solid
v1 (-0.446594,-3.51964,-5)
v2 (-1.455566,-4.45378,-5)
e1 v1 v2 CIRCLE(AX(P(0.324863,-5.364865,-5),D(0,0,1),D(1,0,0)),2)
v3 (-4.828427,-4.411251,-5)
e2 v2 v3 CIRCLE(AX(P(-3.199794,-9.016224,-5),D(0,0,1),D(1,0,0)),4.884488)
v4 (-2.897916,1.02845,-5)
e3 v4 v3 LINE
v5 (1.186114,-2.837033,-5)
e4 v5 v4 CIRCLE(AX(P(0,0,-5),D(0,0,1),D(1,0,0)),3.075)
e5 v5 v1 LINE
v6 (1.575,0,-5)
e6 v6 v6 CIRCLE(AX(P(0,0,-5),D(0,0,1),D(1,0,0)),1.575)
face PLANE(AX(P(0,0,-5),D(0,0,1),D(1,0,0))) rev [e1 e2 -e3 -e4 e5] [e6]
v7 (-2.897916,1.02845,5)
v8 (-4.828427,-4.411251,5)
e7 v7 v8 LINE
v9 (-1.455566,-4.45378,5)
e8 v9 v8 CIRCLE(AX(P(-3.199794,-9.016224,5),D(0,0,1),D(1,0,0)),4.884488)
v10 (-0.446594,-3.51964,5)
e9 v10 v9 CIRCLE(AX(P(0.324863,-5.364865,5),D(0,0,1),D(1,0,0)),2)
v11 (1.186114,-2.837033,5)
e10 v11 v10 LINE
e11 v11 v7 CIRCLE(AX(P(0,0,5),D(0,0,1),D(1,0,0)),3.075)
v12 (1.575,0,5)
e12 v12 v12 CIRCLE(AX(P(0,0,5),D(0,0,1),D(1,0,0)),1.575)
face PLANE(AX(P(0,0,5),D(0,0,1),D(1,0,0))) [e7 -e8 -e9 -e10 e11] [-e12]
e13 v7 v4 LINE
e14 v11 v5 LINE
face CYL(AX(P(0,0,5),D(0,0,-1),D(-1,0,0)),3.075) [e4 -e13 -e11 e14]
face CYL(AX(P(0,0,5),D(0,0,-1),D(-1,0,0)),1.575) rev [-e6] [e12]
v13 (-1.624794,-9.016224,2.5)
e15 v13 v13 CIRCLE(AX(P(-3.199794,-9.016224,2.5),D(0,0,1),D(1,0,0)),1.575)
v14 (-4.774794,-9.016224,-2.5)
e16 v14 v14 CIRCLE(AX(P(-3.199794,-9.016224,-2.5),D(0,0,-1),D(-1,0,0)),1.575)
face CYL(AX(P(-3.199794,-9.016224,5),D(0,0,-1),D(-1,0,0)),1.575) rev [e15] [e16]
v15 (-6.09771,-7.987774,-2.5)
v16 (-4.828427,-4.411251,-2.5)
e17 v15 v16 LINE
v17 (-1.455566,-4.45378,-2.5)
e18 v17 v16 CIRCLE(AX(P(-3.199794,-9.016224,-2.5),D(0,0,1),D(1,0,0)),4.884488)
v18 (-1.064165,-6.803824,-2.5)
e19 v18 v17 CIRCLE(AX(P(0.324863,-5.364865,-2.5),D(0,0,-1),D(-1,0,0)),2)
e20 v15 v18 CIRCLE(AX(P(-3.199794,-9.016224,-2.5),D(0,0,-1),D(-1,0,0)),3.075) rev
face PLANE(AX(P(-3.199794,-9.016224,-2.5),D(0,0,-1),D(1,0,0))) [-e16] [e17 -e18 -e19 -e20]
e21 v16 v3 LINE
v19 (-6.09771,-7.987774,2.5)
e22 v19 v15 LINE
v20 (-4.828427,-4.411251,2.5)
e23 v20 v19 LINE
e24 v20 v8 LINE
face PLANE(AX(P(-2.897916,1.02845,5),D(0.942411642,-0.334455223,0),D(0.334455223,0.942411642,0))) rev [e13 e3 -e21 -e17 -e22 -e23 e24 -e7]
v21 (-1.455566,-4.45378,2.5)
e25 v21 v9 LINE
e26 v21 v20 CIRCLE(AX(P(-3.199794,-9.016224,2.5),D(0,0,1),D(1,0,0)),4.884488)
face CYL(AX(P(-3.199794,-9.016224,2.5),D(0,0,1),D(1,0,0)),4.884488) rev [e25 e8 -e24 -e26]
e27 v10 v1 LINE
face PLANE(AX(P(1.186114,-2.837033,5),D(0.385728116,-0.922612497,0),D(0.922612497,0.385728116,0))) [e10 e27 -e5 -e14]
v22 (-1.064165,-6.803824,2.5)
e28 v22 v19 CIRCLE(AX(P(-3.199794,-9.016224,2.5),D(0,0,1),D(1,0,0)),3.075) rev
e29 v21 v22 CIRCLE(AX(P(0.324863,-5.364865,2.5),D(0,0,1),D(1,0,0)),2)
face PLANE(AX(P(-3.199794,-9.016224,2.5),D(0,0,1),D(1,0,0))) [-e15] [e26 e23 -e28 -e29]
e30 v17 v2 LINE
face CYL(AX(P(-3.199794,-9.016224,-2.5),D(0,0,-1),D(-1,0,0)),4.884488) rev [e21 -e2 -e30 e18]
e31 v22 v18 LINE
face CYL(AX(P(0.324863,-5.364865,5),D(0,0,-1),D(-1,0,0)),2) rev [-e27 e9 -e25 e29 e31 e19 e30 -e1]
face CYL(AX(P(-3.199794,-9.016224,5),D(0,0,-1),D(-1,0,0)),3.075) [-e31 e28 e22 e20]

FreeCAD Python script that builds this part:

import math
import FreeCAD as App
import Part
import Sketcher
from FreeCAD import Vector

doc = App.newDocument("Part")
body = doc.addObject("PartDesign::Body", "Body")

# Sketch on XY plane
sketch1 = body.newObject("Sketcher::SketchObject", "Sketch")
sketch1.AttachmentSupport = (doc.getObject("XY_Plane"), [""])
sketch1.MapMode = "FlatFace"
sketch1.addGeometry([
    Part.LineSegment(Vector(-0.446594, -3.51964, 0), Vector(1.186114, -2.837033, 0)),  # 0
    Part.ArcOfCircle(Part.Circle(Vector(0, 0, 0), Vector(0, 0, 1), 3.075), math.radians(-67.31105), math.radians(160.460586)),  # 1
    Part.LineSegment(Vector(-2.897916, 1.02845, 0), Vector(-6.09771, -7.987774, 0)),  # 2
    Part.ArcOfCircle(Part.Circle(Vector(-3.199794, -9.016224, 0), Vector(0, 0, 1), 3.075), math.radians(160.460586), math.radians(406.011528)),  # 3
    Part.ArcOfCircle(Part.Circle(Vector(0.324863, -5.364865, 0), Vector(0, 0, 1), 2), math.radians(112.68895), math.radians(226.011528)),  # 4
    Part.Circle(Vector(-3.199794, -9.016224, 0), Vector(0, 0, 1), 1.575),  # 5
    Part.Circle(Vector(0, 0, 0), Vector(0, 0, 1), 1.575),  # 6
], False)
sketch1.addConstraint([
    Sketcher.Constraint("Tangent", 0, 2, 1, 1),
    Sketcher.Constraint("Tangent", 1, 2, 2, 1),
    Sketcher.Constraint("Tangent", 2, 2, 3, 1),
    Sketcher.Constraint("Tangent", 3, 2, 4, 2),
    Sketcher.Constraint("Tangent", 4, 1, 0, 1),
    Sketcher.Constraint("Coincident", 1, 3, -1, 1),
    Sketcher.Constraint("Coincident", 6, 3, -1, 1),
    Sketcher.Constraint("Coincident", 5, 3, 3, 3),
    Sketcher.Constraint("Equal", 1, 3),
    Sketcher.Constraint("Equal", 5, 6),
    Sketcher.Constraint("Radius", 4, 2.0),
    Sketcher.Constraint("Diameter", 5, 3.15),
    Sketcher.Constraint("Radius", 1, 3.075),
    Sketcher.Constraint("DistanceY", 3, 3, 3, 2, 2.2124),
    Sketcher.Constraint("Distance", 2, 9.567182),
    Sketcher.Constraint("DistanceY", -1, 1, 1, 2, 1.02845),
])
pad1 = body.newObject("PartDesign::Pad", "Pad")
pad1.Profile = sketch1
pad1.Length = 10
pad1.Midplane = True

# Sketch on XY plane
sketch2 = body.newObject("Sketcher::SketchObject", "Sketch001")
sketch2.AttachmentSupport = (doc.getObject("XY_Plane"), [""])
sketch2.MapMode = "FlatFace"
sketch2.AttachmentOffset = App.Placement(Vector(0, 0, 5), App.Rotation())
sketch2.addGeometry(Part.Circle(Vector(-3.199794, -9.016224, 0), Vector(0, 0, 1), 4.884488), False)
sketch2.addConstraint([
    Sketcher.Constraint("Diameter", 0, 9.768975),
    Sketcher.Constraint("DistanceX", 0, 3, -1, 1, 3.199794),
    Sketcher.Constraint("DistanceY", 0, 3, -1, 1, 9.016224),
])
pocket1 = body.newObject("PartDesign::Pocket", "Pocket")
pocket1.Profile = sketch2
pocket1.Length = 2.5
doc.recompute()

mirrored = body.newObject("PartDesign::Mirrored", "Mirrored")
mirrored.Originals = [pocket1]
mirrored.MirrorPlane = (doc.getObject("XY_Plane"), [""])
body.Tip = mirrored

doc.recompute()
